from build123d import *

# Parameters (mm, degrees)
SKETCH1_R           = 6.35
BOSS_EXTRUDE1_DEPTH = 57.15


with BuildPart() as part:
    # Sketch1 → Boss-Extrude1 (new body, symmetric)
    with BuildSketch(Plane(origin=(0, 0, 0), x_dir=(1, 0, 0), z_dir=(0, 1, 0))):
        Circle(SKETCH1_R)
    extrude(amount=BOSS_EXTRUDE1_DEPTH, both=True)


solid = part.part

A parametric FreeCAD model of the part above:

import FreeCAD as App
import Part
import Sketcher
Q = App.Units.Quantity

doc = App.newDocument("Part")
params = doc.addObject("Spreadsheet::Sheet", "Params")
for row, (alias, value) in enumerate([
    ("sketch1_diameter", "0.5 in"),
    ("pad1_length", "4.5 in"),
], start=1):
    params.set(f"A{row}", alias)
    params.set(f"B{row}", "=" + value)
    params.setAlias(f"B{row}", alias)

body = doc.addObject("PartDesign::Body", "Body")

# Sketch on XZ plane
sketch1 = body.newObject("Sketcher::SketchObject", "Sketch")
sketch1.AttachmentSupport = (doc.getObject("XZ_Plane"), [""])
sketch1.MapMode = "FlatFace"
sketch1.addGeometry(Part.Circle(App.Vector(0, 0, 0), App.Vector(0, 0, 1), 6.35), False)
sketch1.addConstraint(Sketcher.Constraint("Coincident", 0, 3, -1, 1))
sketch1.addConstraint(Sketcher.Constraint("Diameter", 0, Q("0.5 in")))
sketch1.setExpression("Constraints[1]", "Params.sketch1_diameter")
pad1 = body.newObject("PartDesign::Pad", "Pad")
pad1.Profile = sketch1
pad1.setExpression("Length", "Params.pad1_length")
pad1.Midplane = True

doc.recompute()
